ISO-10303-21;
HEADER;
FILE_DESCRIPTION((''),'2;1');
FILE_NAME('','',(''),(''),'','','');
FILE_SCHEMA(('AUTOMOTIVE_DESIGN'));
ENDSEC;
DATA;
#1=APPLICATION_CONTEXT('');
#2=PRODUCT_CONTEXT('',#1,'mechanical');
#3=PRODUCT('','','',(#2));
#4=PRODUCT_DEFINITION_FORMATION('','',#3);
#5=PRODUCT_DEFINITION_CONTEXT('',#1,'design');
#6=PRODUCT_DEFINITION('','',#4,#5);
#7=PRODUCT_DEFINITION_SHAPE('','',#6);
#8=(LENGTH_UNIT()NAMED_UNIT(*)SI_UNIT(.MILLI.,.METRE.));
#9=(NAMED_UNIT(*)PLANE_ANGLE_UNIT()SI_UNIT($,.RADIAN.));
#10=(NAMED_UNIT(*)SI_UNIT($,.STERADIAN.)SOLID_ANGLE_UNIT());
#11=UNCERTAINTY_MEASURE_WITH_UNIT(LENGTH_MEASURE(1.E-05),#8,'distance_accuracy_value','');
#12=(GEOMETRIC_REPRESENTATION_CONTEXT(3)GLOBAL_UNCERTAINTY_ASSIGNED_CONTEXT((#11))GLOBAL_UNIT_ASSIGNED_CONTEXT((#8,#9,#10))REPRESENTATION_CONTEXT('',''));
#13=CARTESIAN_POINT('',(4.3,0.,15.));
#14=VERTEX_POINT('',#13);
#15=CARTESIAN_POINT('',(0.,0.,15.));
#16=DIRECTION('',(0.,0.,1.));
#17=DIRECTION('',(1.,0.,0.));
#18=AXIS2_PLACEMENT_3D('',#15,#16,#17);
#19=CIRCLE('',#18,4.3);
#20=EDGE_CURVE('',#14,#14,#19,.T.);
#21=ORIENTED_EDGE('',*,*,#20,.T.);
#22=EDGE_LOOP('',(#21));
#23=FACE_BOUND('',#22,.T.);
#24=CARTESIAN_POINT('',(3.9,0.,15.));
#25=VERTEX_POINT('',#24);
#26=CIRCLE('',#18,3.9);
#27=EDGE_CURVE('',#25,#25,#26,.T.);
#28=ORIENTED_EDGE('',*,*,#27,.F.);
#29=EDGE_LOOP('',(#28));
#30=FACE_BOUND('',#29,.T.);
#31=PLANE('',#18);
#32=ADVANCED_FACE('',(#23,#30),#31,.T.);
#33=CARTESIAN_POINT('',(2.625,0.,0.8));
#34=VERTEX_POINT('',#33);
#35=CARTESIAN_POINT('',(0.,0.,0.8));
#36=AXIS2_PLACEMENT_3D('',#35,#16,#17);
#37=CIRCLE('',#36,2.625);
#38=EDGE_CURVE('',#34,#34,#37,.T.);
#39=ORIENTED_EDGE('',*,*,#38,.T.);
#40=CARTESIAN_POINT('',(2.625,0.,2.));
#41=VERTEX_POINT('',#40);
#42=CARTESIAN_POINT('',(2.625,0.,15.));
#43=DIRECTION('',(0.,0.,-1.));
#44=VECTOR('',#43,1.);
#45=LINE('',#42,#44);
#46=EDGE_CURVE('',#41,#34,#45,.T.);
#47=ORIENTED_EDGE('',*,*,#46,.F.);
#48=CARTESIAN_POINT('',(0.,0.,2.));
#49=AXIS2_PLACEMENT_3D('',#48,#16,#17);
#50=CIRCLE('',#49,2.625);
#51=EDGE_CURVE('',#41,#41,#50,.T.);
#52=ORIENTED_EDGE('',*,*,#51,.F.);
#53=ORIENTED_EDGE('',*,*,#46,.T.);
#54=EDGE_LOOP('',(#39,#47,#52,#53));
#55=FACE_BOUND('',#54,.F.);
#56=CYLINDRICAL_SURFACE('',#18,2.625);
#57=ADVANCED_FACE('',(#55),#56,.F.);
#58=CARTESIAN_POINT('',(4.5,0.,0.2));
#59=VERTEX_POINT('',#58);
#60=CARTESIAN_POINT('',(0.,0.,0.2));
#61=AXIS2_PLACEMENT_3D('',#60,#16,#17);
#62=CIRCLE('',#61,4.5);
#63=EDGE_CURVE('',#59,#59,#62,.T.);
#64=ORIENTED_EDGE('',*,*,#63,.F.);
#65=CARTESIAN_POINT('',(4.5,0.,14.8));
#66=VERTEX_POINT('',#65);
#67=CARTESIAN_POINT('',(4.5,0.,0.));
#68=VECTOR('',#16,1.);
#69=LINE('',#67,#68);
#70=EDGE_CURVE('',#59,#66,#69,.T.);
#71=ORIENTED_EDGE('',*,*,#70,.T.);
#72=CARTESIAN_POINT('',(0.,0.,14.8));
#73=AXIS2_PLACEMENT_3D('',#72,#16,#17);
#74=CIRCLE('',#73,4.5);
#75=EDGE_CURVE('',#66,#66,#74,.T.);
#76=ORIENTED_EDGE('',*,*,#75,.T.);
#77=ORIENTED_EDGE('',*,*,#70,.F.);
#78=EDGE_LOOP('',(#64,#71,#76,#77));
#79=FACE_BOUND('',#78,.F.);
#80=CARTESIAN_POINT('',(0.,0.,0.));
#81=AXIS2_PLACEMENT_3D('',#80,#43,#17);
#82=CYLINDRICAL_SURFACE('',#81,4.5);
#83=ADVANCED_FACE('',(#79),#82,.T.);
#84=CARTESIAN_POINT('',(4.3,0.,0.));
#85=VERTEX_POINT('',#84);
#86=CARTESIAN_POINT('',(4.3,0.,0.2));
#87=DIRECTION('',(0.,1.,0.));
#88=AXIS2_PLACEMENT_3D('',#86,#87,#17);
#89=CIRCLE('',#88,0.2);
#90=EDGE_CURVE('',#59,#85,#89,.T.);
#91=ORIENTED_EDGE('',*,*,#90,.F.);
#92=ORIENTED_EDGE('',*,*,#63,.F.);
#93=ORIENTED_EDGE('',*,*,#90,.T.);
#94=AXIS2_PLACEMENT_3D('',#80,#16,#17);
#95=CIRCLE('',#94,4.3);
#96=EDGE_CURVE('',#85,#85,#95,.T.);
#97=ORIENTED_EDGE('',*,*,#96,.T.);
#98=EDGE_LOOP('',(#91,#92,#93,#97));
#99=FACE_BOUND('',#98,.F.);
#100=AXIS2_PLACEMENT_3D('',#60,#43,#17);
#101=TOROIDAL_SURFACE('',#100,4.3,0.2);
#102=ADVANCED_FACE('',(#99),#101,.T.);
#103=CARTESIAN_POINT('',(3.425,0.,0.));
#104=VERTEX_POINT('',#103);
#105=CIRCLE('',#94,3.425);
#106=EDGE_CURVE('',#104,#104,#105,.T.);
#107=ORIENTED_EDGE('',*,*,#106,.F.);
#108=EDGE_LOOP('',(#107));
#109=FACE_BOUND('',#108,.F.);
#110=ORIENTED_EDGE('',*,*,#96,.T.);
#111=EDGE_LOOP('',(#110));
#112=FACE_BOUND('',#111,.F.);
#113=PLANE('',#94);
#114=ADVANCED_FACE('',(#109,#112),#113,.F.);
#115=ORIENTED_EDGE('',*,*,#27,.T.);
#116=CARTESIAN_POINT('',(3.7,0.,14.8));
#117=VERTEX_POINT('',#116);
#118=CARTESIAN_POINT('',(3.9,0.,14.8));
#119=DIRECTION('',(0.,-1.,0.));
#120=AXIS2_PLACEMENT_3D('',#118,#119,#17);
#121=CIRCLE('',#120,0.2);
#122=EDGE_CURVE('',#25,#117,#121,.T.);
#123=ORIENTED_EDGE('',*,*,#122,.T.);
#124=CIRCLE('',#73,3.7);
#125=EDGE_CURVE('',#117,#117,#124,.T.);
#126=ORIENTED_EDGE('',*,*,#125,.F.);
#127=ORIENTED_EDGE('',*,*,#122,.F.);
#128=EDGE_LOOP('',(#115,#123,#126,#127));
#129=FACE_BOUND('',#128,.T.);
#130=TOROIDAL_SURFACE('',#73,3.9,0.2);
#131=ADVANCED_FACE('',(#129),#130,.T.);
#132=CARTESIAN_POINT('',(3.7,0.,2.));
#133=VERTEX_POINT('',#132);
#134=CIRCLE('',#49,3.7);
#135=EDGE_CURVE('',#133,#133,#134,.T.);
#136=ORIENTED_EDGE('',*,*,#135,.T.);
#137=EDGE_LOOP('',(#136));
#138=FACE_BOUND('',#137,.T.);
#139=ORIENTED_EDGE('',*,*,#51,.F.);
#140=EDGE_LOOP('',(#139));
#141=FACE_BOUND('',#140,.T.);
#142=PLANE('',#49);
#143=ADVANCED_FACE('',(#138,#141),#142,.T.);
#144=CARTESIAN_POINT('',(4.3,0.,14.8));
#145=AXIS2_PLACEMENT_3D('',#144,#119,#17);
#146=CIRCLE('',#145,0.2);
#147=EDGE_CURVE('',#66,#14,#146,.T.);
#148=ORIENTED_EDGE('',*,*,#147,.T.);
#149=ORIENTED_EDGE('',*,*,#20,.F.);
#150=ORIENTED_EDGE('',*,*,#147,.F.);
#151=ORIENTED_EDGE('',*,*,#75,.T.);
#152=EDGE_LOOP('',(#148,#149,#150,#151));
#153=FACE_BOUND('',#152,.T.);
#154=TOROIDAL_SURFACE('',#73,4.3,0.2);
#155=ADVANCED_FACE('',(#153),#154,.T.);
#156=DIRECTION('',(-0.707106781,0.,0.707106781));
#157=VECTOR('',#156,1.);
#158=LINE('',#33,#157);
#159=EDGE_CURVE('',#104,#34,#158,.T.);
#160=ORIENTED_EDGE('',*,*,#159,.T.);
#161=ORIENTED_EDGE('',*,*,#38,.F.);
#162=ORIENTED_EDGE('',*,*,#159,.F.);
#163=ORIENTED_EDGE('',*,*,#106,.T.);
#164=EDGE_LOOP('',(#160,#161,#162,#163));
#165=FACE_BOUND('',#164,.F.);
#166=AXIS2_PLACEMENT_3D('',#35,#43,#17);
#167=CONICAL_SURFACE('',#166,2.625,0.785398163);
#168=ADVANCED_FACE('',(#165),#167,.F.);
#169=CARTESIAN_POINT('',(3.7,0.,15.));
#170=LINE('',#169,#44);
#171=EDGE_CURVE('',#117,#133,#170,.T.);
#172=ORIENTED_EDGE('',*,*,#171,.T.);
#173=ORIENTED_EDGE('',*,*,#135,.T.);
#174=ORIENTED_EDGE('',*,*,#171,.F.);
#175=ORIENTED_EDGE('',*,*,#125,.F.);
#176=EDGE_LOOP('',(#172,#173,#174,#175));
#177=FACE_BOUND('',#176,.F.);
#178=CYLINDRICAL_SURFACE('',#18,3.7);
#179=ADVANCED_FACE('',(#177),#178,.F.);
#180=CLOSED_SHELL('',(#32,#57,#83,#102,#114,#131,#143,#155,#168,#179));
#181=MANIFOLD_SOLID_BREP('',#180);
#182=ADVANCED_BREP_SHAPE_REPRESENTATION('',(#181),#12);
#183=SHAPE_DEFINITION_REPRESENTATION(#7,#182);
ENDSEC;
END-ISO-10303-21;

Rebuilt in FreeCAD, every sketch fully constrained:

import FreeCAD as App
import Part
import Sketcher
Q = App.Units.Quantity


def edges_at(feature, points):
    """Names of the edges that pass closest to the given points."""
    edges = feature.Shape.Edges
    near = lambda p: min(range(len(edges)), key=lambda i: edges[i].distToShape(Part.Vertex(*p))[0])
    return sorted({f"Edge{near(p) + 1}" for p in points})

doc = App.newDocument("Part")
body = doc.addObject("PartDesign::Body", "Body")

sketch1 = body.newObject("Sketcher::SketchObject", "Sketch")
sketch1.AttachmentSupport = (doc.getObject("XY_Plane"), [""])
sketch1.MapMode = "FlatFace"
sketch1.addGeometry(Part.Circle(App.Vector(0, 0, 0), App.Vector(0, 0, 1), 4.5), False)
sketch1.addConstraint(Sketcher.Constraint("Coincident", 0, 3, -1, 1))
sketch1.addConstraint(Sketcher.Constraint("Diameter", 0, Q("9 mm")))
pad1 = body.newObject("PartDesign::Pad", "Pad")
pad1.Profile = sketch1
pad1.Length = 15

sketch2 = body.newObject("Sketcher::SketchObject", "Sketch001")
sketch2.AttachmentSupport = (doc.getObject("XY_Plane"), [""])
sketch2.MapMode = "FlatFace"
sketch2.AttachmentOffset = App.Placement(App.Vector(0, 0, 15), App.Rotation())
sketch2.addGeometry(Part.Circle(App.Vector(0, 0, 0), App.Vector(0, 0, 1), 2.6), False)
sketch2.addConstraint(Sketcher.Constraint("Coincident", 0, 3, -1, 1))
sketch2.addConstraint(Sketcher.Constraint("Diameter", 0, Q("5.25 mm")))
pocket1 = body.newObject("PartDesign::Pocket", "Pocket")
pocket1.Profile = sketch2
pocket1.Length = 25

sketch3 = body.newObject("Sketcher::SketchObject", "Sketch002")
sketch3.AttachmentSupport = (doc.getObject("XY_Plane"), [""])
sketch3.MapMode = "FlatFace"
sketch3.AttachmentOffset = App.Placement(App.Vector(0, 0, 15), App.Rotation())
sketch3.addGeometry(Part.Circle(App.Vector(0, 0, 0), App.Vector(0, 0, 1), 3.7), False)
sketch3.addGeometry(Part.Circle(App.Vector(0, 0, 0), App.Vector(0, 0, 1), 2.6), False)
sketch3.addConstraint(Sketcher.Constraint("Coincident", 0, 3, -1, 1))
sketch3.addConstraint(Sketcher.Constraint("Coincident", 1, 3, -1, 1))
sketch3.addConstraint(Sketcher.Constraint("Diameter", 0, Q("7.4 mm")))
sketch3.addConstraint(Sketcher.Constraint("Diameter", 1, Q("5.25 mm")))
pocket2 = body.newObject("PartDesign::Pocket", "Pocket001")
pocket2.Profile = sketch3
pocket2.Length = 13
doc.recompute()

fillet = body.newObject("PartDesign::Fillet", "Fillet")
fillet.Base = (pocket2, edges_at(pocket2, [(-4.5, 0, 15), (-3.7, 0, 15), (-4.5, 0, 0)]))
fillet.Radius = 0.2
doc.recompute()

chamfer = body.newObject("PartDesign::Chamfer", "Chamfer")
chamfer.Base = (fillet, edges_at(fillet, [(-2.625, 0, 0)]))
chamfer.Size = 0.8

doc.recompute()
